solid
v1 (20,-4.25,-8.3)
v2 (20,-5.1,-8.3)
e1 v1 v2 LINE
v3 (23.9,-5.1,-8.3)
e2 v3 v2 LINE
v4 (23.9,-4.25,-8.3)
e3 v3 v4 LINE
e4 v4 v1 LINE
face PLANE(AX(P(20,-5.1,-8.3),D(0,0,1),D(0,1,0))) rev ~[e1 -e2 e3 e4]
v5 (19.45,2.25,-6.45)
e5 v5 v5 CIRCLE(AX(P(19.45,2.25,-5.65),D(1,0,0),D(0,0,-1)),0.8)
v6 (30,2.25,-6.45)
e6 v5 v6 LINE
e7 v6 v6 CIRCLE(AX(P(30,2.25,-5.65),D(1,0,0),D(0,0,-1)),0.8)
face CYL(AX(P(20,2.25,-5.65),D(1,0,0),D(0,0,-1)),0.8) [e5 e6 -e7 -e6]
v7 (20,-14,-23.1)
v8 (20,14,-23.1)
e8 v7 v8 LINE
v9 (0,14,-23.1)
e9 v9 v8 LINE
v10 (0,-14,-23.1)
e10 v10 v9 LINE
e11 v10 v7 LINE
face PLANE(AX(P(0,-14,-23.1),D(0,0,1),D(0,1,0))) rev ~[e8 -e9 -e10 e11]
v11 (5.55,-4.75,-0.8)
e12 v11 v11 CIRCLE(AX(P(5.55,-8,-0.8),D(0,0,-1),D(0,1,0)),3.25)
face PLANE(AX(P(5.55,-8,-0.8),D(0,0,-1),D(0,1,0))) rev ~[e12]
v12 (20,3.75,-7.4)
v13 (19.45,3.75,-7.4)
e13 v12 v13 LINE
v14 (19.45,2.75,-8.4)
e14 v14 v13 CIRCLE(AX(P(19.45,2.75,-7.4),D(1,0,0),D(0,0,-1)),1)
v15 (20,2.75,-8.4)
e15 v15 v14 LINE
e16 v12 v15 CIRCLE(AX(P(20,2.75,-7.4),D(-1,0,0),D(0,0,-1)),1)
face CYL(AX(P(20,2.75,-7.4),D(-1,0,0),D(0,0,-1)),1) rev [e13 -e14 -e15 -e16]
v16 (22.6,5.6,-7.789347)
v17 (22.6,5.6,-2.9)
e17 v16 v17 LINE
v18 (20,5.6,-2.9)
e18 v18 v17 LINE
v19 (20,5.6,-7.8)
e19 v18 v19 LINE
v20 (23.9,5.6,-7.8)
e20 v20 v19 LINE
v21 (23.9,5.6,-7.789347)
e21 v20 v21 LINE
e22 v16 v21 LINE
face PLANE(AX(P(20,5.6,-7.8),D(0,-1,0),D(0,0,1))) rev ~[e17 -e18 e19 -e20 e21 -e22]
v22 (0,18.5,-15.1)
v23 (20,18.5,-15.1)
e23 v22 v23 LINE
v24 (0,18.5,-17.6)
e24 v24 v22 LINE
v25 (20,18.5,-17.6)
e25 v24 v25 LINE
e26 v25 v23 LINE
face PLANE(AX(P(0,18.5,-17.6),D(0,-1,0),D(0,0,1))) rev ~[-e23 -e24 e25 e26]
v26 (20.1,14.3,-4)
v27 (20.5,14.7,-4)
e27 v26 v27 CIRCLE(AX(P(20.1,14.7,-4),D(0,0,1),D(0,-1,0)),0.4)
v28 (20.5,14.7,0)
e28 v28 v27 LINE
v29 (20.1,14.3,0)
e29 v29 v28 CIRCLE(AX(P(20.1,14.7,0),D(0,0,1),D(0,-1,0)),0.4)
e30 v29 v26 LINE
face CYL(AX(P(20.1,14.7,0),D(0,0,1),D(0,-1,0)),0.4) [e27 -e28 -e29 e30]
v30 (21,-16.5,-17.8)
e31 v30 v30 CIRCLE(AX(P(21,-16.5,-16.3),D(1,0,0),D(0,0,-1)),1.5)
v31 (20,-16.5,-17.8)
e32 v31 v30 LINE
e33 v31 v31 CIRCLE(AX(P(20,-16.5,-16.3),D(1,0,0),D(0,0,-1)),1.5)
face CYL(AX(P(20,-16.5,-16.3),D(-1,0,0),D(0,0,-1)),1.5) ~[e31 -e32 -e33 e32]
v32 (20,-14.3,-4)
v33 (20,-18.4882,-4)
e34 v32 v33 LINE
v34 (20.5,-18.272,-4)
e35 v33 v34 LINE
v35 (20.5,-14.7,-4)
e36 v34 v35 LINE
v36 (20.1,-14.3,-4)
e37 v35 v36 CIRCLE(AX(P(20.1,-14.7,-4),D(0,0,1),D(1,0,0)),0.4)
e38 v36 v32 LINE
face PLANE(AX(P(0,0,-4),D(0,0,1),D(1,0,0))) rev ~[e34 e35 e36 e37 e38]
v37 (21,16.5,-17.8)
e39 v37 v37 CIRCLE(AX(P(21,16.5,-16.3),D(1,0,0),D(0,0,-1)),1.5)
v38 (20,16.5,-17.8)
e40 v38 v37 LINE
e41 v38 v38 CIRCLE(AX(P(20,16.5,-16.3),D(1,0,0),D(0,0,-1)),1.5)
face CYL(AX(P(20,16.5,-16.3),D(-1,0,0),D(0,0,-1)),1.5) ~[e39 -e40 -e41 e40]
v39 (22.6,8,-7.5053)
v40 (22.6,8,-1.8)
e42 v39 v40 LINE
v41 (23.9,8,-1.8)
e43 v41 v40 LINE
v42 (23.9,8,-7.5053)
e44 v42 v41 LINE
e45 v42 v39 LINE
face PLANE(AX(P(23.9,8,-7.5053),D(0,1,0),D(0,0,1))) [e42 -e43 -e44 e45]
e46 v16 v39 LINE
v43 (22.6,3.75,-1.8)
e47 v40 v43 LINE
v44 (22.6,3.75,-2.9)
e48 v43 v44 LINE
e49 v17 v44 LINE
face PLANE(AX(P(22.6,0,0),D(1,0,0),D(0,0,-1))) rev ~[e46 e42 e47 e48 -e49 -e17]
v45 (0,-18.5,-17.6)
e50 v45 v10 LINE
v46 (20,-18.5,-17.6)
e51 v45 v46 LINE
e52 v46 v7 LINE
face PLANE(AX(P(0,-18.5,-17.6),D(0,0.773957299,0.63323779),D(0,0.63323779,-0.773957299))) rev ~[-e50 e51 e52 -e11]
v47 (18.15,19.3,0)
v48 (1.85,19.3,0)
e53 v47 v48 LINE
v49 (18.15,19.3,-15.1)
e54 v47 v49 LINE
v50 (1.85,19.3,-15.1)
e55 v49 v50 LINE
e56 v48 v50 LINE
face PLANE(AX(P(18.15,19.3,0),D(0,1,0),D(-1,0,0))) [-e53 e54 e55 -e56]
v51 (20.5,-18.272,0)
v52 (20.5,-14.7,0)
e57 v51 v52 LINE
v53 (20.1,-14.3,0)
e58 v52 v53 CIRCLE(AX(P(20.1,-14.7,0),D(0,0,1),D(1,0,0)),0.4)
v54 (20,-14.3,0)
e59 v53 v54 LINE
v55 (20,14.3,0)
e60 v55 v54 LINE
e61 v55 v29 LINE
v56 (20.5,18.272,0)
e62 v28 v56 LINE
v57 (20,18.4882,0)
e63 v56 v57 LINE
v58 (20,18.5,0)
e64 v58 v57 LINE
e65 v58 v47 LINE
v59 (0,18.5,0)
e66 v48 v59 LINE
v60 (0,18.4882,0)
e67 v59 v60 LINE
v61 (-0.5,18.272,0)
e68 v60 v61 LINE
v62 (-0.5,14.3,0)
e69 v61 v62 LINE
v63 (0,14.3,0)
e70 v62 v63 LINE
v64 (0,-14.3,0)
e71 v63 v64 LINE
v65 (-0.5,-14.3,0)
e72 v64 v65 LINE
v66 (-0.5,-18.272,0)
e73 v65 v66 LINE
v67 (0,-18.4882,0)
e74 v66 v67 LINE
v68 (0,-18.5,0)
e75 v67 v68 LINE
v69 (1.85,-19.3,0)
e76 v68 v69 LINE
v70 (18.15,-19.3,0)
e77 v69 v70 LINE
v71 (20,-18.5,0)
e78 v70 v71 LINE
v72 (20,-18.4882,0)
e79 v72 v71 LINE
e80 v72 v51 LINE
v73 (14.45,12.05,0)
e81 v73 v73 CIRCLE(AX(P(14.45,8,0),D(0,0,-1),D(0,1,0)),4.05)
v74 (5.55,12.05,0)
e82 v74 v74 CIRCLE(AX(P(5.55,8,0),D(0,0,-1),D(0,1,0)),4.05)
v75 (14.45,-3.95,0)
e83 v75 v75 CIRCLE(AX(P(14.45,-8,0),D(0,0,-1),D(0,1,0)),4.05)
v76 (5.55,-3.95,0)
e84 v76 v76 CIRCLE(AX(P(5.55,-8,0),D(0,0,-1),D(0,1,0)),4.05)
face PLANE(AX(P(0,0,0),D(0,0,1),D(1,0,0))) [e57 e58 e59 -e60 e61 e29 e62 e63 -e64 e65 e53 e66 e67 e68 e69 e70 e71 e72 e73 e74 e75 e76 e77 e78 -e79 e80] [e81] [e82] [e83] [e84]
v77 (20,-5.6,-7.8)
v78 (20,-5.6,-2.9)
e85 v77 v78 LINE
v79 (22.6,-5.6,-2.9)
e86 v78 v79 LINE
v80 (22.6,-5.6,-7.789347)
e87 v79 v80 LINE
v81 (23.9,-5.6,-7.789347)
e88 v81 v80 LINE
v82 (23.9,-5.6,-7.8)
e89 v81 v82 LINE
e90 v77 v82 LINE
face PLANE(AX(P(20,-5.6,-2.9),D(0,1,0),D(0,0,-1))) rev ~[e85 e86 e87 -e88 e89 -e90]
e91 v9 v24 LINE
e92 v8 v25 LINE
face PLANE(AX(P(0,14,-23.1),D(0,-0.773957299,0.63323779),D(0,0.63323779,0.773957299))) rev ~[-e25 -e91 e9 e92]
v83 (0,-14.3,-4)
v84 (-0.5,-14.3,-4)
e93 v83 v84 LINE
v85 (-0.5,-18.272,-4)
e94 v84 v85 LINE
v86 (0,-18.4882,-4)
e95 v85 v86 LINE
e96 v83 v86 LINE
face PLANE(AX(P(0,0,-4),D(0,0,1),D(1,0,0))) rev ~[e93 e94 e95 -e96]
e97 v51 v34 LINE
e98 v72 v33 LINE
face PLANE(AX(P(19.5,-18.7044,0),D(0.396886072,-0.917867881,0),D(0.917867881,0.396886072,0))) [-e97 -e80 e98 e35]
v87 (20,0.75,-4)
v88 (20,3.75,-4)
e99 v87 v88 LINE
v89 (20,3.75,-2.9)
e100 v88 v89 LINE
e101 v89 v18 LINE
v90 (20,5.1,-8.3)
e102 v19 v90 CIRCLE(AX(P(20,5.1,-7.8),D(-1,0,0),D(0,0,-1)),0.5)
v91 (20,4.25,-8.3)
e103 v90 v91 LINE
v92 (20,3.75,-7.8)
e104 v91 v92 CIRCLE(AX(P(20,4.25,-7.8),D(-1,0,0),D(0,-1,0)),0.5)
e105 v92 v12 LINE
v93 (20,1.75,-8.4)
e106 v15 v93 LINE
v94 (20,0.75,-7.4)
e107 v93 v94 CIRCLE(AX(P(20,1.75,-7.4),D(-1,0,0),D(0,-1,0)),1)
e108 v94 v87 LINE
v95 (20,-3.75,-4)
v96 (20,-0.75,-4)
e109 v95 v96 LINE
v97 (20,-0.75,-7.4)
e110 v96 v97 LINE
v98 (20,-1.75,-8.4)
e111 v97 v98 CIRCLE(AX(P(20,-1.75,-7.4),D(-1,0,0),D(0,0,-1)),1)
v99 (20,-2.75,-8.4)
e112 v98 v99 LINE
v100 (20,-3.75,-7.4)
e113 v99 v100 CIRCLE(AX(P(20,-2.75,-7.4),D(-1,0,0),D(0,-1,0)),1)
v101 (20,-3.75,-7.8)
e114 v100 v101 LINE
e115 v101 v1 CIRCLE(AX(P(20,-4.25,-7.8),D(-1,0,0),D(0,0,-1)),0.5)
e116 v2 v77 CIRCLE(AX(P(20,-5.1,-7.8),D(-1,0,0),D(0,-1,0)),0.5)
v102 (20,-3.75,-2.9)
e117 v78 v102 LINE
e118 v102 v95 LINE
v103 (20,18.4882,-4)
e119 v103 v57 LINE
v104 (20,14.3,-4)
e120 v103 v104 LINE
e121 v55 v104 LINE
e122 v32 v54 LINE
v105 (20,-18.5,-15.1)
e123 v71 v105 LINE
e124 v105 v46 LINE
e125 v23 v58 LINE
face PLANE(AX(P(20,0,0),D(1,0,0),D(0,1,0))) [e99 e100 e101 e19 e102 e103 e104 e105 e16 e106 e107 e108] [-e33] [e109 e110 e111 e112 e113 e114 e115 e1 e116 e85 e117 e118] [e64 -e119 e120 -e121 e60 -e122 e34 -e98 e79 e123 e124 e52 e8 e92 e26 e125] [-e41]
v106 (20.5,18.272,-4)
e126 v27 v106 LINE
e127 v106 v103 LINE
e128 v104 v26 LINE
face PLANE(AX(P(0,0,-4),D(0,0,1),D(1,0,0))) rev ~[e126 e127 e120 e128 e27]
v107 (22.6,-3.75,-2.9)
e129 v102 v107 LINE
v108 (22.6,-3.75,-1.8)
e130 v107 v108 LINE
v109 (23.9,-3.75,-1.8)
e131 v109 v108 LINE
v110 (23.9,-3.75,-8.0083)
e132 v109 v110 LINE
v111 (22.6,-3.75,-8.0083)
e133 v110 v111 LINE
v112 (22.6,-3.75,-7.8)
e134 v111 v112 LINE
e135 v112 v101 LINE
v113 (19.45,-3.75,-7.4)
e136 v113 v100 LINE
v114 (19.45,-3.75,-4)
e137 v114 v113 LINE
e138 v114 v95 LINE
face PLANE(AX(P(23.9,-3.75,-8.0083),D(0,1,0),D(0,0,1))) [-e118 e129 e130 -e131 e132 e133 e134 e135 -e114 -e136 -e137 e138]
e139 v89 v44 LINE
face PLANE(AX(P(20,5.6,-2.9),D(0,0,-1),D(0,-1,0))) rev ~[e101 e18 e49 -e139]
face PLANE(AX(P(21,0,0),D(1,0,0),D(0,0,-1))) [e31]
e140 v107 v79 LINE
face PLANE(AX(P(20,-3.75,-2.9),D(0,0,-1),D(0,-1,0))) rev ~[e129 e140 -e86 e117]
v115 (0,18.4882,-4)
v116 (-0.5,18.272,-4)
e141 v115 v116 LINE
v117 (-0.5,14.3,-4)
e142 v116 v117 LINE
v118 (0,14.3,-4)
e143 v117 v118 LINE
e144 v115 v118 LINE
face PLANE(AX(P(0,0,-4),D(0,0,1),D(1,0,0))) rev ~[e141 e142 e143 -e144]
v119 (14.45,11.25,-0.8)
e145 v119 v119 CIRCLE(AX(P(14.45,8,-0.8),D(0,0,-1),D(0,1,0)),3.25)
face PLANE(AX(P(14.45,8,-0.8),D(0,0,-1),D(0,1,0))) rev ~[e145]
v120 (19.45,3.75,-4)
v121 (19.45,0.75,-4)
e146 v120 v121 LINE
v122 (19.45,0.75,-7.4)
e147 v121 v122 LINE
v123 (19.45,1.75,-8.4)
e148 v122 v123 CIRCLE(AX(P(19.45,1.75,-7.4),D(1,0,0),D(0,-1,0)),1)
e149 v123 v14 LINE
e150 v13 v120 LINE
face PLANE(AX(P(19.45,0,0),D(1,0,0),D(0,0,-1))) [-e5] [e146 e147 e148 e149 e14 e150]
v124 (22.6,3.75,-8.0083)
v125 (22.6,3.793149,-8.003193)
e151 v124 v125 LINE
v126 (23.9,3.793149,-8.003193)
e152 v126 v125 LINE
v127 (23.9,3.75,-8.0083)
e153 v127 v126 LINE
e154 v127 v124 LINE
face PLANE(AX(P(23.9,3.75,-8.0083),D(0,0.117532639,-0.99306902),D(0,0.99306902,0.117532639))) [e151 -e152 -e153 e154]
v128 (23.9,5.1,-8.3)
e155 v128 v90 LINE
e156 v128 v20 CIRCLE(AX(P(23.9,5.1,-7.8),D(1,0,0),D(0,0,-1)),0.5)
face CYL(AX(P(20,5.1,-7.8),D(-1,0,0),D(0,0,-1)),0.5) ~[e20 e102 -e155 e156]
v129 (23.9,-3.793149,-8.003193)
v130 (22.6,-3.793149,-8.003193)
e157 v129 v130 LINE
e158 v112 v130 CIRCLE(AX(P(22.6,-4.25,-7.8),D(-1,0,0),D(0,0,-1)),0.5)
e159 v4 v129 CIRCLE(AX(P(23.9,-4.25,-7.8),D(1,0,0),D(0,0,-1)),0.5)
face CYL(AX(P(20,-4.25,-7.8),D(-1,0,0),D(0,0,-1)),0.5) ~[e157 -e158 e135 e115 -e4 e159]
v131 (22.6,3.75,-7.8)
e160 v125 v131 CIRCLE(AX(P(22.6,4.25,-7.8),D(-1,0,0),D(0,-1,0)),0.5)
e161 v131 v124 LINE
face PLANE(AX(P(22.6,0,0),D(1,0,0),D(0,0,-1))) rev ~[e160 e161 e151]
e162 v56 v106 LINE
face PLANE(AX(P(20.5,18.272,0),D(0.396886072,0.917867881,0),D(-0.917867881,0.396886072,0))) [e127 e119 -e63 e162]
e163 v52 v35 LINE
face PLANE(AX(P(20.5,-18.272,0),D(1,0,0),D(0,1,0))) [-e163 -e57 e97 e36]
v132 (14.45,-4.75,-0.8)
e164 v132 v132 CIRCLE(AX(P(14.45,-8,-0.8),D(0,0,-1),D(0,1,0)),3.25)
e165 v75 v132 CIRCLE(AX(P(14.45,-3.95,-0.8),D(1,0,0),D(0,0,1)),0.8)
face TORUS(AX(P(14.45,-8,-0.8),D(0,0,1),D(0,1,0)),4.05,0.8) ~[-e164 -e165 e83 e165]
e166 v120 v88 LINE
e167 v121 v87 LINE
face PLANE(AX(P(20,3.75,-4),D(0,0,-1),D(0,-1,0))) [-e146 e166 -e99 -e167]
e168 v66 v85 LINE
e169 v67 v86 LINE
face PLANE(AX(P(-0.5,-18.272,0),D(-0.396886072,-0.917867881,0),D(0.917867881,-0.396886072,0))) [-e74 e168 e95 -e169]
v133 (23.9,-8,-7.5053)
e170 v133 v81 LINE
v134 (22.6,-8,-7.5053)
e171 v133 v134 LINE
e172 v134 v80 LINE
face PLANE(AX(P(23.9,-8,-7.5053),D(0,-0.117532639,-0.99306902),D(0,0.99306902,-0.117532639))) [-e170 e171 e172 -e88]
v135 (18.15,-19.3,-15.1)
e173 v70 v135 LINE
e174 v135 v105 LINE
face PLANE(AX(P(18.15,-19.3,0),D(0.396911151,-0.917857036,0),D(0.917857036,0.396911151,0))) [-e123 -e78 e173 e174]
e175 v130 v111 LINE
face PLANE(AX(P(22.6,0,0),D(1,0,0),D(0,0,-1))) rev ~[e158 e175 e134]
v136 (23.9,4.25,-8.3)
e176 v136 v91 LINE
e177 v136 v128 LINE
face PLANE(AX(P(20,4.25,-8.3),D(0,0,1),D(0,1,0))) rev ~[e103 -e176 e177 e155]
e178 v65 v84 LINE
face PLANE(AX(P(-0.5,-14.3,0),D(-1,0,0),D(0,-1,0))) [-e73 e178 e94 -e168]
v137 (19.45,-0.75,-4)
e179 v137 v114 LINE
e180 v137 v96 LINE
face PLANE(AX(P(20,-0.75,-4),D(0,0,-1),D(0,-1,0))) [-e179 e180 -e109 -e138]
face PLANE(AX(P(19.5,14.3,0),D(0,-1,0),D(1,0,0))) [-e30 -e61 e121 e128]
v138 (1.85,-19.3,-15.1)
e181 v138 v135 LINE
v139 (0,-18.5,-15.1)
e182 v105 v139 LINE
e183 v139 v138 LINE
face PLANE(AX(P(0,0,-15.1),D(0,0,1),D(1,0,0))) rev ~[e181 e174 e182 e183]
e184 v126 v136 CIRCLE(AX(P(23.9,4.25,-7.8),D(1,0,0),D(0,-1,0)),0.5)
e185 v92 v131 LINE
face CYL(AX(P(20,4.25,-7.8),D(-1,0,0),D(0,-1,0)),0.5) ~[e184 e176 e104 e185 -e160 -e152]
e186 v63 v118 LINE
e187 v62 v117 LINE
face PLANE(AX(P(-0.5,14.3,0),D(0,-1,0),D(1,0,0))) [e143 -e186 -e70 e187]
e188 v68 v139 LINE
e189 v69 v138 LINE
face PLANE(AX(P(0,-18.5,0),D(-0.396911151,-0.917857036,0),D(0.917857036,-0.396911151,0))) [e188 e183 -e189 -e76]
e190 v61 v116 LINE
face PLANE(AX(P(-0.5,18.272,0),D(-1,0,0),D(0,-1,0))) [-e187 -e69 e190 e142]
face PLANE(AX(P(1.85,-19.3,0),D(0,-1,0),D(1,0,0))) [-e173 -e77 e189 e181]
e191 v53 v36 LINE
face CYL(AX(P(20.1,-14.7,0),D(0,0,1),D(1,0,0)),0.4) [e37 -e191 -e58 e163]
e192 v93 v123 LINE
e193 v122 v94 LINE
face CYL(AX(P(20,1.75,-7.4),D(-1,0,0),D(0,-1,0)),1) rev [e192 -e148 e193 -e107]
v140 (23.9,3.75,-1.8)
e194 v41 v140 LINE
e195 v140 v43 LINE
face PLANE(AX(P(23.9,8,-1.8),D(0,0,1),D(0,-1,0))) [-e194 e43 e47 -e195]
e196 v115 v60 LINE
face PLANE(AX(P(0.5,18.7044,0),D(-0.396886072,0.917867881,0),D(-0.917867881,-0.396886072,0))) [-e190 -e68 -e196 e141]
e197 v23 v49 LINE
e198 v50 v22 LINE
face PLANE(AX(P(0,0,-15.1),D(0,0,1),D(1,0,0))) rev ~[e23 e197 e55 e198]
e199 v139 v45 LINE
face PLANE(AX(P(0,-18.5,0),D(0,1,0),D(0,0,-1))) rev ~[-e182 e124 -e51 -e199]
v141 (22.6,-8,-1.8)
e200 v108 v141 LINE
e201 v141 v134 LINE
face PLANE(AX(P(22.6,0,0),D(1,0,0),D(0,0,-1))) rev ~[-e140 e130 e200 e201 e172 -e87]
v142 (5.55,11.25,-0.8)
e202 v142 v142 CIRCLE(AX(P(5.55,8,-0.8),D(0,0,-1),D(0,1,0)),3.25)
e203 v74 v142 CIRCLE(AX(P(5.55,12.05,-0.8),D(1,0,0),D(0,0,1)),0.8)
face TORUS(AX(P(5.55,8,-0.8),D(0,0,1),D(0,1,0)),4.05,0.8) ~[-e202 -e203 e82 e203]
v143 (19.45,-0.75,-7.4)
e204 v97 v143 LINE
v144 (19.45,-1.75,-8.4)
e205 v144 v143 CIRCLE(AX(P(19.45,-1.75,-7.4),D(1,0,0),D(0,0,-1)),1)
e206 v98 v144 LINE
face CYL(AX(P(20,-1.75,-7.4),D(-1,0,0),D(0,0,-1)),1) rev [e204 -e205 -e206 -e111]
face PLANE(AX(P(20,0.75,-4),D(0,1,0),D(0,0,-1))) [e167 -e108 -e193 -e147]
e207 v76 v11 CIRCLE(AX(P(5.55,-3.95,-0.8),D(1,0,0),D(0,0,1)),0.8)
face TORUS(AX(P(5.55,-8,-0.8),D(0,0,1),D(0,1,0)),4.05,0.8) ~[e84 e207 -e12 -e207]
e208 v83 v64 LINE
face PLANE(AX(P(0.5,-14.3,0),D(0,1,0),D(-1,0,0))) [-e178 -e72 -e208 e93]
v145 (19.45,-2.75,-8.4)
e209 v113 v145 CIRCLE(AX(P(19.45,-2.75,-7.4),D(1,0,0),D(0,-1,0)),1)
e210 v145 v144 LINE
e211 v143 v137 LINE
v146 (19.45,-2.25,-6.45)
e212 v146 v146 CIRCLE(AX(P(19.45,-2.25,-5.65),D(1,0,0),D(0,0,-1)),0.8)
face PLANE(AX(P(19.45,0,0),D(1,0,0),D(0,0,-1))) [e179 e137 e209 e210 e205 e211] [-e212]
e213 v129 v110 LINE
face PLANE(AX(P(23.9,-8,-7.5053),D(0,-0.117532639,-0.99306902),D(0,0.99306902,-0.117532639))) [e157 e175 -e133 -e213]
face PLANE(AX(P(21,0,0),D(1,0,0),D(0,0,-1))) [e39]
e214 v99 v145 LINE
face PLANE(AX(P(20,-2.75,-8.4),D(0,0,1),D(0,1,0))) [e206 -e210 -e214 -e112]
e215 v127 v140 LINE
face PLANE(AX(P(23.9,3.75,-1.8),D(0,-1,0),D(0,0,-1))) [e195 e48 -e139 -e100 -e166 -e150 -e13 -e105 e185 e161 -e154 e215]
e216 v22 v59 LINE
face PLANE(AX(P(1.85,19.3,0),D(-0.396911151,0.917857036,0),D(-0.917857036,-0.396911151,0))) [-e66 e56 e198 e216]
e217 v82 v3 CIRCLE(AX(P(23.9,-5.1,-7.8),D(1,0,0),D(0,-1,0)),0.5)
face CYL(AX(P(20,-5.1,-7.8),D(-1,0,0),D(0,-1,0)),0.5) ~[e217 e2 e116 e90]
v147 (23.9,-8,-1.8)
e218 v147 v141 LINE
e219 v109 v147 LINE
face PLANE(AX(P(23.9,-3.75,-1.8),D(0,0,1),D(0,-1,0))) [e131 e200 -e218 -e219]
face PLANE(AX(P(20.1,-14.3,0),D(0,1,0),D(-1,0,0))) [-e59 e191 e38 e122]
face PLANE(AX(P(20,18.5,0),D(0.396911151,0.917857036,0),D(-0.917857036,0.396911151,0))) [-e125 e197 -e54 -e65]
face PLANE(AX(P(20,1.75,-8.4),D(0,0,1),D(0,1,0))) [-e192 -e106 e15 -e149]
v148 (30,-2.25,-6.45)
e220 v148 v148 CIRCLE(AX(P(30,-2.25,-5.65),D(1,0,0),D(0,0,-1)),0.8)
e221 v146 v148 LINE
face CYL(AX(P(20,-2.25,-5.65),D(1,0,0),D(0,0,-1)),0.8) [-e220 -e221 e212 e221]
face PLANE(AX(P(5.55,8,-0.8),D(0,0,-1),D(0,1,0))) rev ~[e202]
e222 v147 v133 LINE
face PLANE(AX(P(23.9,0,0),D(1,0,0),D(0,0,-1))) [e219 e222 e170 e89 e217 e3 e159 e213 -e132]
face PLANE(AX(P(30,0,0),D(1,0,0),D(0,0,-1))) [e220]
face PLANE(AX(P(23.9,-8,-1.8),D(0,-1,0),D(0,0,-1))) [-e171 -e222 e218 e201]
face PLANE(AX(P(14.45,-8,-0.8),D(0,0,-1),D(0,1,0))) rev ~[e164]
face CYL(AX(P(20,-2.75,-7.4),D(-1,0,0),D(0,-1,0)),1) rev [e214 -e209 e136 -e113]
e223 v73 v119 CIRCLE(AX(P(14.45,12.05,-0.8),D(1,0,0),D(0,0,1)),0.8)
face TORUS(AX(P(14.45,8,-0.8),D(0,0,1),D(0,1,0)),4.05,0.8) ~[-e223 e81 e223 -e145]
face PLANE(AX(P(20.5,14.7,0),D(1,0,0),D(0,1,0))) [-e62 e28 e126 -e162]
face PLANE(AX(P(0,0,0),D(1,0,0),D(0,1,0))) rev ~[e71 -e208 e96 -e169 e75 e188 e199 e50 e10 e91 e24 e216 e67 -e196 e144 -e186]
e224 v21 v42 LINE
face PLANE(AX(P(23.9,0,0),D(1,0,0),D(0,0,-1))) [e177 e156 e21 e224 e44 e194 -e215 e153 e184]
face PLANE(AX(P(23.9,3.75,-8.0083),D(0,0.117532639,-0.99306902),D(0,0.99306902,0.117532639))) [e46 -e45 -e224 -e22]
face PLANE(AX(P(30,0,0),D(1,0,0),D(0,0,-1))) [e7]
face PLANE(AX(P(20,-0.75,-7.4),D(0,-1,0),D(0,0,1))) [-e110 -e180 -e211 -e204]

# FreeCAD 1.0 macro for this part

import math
import FreeCAD as App
import Part
import Sketcher
Q = App.Units.Quantity

doc = App.newDocument("Part")
body = doc.addObject("PartDesign::Body", "Body")

# Sketch on YZ plane
sketch1 = body.newObject("Sketcher::SketchObject", "Sketch")
sketch1.AttachmentSupport = (doc.getObject("YZ_Plane"), [""])
sketch1.MapMode = "FlatFace"
sketch1.addGeometry([
    Part.LineSegment(App.Vector(18, 0, 0), App.Vector(-18, 0, 0)),  # 0
    Part.LineSegment(App.Vector(-18, 0, 0), App.Vector(-18, -18, 0)),  # 1
    Part.LineSegment(App.Vector(-18, -18, 0), App.Vector(-14, -23, 0)),  # 2
    Part.LineSegment(App.Vector(-14, -23, 0), App.Vector(14, -23, 0)),  # 3
    Part.LineSegment(App.Vector(14, -23, 0), App.Vector(18, -18, 0)),  # 4
    Part.LineSegment(App.Vector(18, -18, 0), App.Vector(18, 0, 0)),  # 5
], False)
sketch1.addConstraint([
    Sketcher.Constraint("Coincident", 0, 2, 1, 1),
    Sketcher.Constraint("Coincident", 1, 2, 2, 1),
    Sketcher.Constraint("Coincident", 2, 2, 3, 1),
    Sketcher.Constraint("Coincident", 3, 2, 4, 1),
    Sketcher.Constraint("Coincident", 4, 2, 5, 1),
    Sketcher.Constraint("Coincident", 5, 2, 0, 1),
    Sketcher.Constraint("Horizontal", 0),
    Sketcher.Constraint("Vertical", 1),
    Sketcher.Constraint("Horizontal", 3),
    Sketcher.Constraint("Vertical", 5),
    Sketcher.Constraint("Symmetric", 0, 2, 5, 2, -1, 1),
    Sketcher.Constraint("Horizontal", 1, 2, 4, 2),
    Sketcher.Constraint("Equal", 2, 4),
    Sketcher.Constraint("DistanceX", 0, 2, 0, 1, Q("37 mm")),
    Sketcher.Constraint("DistanceX", 3, 1, 3, 2, Q("28 mm")),
    Sketcher.Constraint("DistanceY", 1, 2, 1, 1, Q("17.6 mm")),
    Sketcher.Constraint("DistanceY", 2, 2, -1, 1, Q("23.1 mm")),
])
pad1 = body.newObject("PartDesign::Pad", "Pad")
pad1.Profile = sketch1
pad1.Length = 20

# Sketch on XY plane
sketch2 = body.newObject("Sketcher::SketchObject", "Sketch001")
sketch2.AttachmentSupport = (doc.getObject("XY_Plane"), [""])
sketch2.MapMode = "FlatFace"
sketch2.addGeometry([
    Part.LineSegment(App.Vector(1.9, 19.3, 0), App.Vector(0, 18.5, 0)),
    Part.LineSegment(App.Vector(0, 18.5, 0), App.Vector(20, 18.5, 0)),
    Part.LineSegment(App.Vector(20, 18.5, 0), App.Vector(18.1, 19.3, 0)),
    Part.LineSegment(App.Vector(18.1, 19.3, 0), App.Vector(1.9, 19.3, 0)),
], False)
sketch2.addConstraint([
    Sketcher.Constraint("Coincident", 0, 2, 1, 1),
    Sketcher.Constraint("Coincident", 1, 2, 2, 1),
    Sketcher.Constraint("Coincident", 2, 2, 3, 1),
    Sketcher.Constraint("Coincident", 3, 2, 0, 1),
    Sketcher.Constraint("Horizontal", 1),
    Sketcher.Constraint("Horizontal", 3),
    Sketcher.Constraint("PointOnObject", 0, 2, -2),
    Sketcher.Constraint("Equal", 0, 2),
    Sketcher.Constraint("DistanceX", 1, 1, 1, 2, Q("20 mm")),
    Sketcher.Constraint("DistanceX", 3, 2, 3, 1, Q("16.3 mm")),
    Sketcher.Constraint("DistanceY", -1, 1, 0, 2, Q("18.5 mm")),
    Sketcher.Constraint("DistanceY", -1, 1, 2, 2, Q("19.3 mm")),
])
pad2 = body.newObject("PartDesign::Pad", "Pad001")
pad2.Profile = sketch2
pad2.Length = 15.1
pad2.Reversed = True

# Sketch on XY plane
sketch3 = body.newObject("Sketcher::SketchObject", "Sketch002")
sketch3.AttachmentSupport = (doc.getObject("XY_Plane"), [""])
sketch3.MapMode = "FlatFace"
sketch3.addGeometry([
    Part.LineSegment(App.Vector(20, -18.5, 0), App.Vector(0, -18.5, 0)),
    Part.LineSegment(App.Vector(0, -18.5, 0), App.Vector(1.9, -19.3, 0)),
    Part.LineSegment(App.Vector(1.9, -19.3, 0), App.Vector(18.1, -19.3, 0)),
    Part.LineSegment(App.Vector(18.1, -19.3, 0), App.Vector(20, -18.5, 0)),
], False)
sketch3.addConstraint([
    Sketcher.Constraint("Coincident", 0, 2, 1, 1),
    Sketcher.Constraint("Coincident", 1, 2, 2, 1),
    Sketcher.Constraint("Coincident", 2, 2, 3, 1),
    Sketcher.Constraint("Coincident", 3, 2, 0, 1),
    Sketcher.Constraint("Horizontal", 0),
    Sketcher.Constraint("Horizontal", 2),
    Sketcher.Constraint("PointOnObject", 0, 2, -2),
    Sketcher.Constraint("Equal", 1, 3),
    Sketcher.Constraint("DistanceX", 0, 2, 0, 1, Q("20 mm")),
    Sketcher.Constraint("DistanceX", 2, 1, 2, 2, Q("16.3 mm")),
    Sketcher.Constraint("DistanceY", 0, 2, -1, 1, Q("18.5 mm")),
    Sketcher.Constraint("DistanceY", 1, 2, -1, 1, Q("19.3 mm")),
])
pad3 = body.newObject("PartDesign::Pad", "Pad002")
pad3.Profile = sketch3
pad3.Length = 15.1
pad3.Reversed = True

# Sketch on XY plane
sketch4 = body.newObject("Sketcher::SketchObject", "Sketch003")
sketch4.AttachmentSupport = (doc.getObject("XY_Plane"), [""])
sketch4.MapMode = "FlatFace"
sketch4.addGeometry([
    Part.LineSegment(App.Vector(0.5, 18.7, 0), App.Vector(-0.5, 18.3, 0)),
    Part.LineSegment(App.Vector(-0.5, 18.3, 0), App.Vector(-0.5, 14.3, 0)),
    Part.LineSegment(App.Vector(-0.5, 14.3, 0), App.Vector(0.5, 14.3, 0)),
    Part.LineSegment(App.Vector(0.5, 14.3, 0), App.Vector(0.5, 18.7, 0)),
], False)
sketch4.addConstraint([
    Sketcher.Constraint("Coincident", 0, 2, 1, 1),
    Sketcher.Constraint("Coincident", 1, 2, 2, 1),
    Sketcher.Constraint("Coincident", 2, 2, 3, 1),
    Sketcher.Constraint("Coincident", 3, 2, 0, 1),
    Sketcher.Constraint("Vertical", 1),
    Sketcher.Constraint("Horizontal", 2),
    Sketcher.Constraint("Vertical", 3),
    Sketcher.Constraint("DistanceX", 2, 1, 2, 2, Q("1 mm")),
    Sketcher.Constraint("DistanceX", 0, 2, -1, 1, Q("0.5 mm")),
    Sketcher.Constraint("DistanceY", -1, 1, 1, 2, Q("14.3 mm")),
    Sketcher.Constraint("DistanceY", 1, 2, 1, 1, Q("3.972 mm")),
    Sketcher.Constraint("DistanceY", 3, 1, 3, 2, Q("4.4044 mm")),
])
pad4 = body.newObject("PartDesign::Pad", "Pad003")
pad4.Profile = sketch4
pad4.Length = 4
pad4.Reversed = True

# Sketch on XY plane
sketch5 = body.newObject("Sketcher::SketchObject", "Sketch004")
sketch5.AttachmentSupport = (doc.getObject("XY_Plane"), [""])
sketch5.MapMode = "FlatFace"
sketch5.addGeometry([
    Part.LineSegment(App.Vector(20.5, 18.27, 0), App.Vector(19.5, 18.7, 0)),  # 0
    Part.LineSegment(App.Vector(19.5, 18.7, 0), App.Vector(19.5, 14.3, 0)),  # 1
    Part.LineSegment(App.Vector(19.5, 14.3, 0), App.Vector(20.1, 14.3, 0)),  # 2
    Part.ArcOfCircle(Part.Circle(App.Vector(20.1, 14.7, 0), App.Vector(0, 0, 1), 0.4), math.radians(-90), math.radians(0)),  # 3
    Part.LineSegment(App.Vector(20.5, 14.7, 0), App.Vector(20.5, 18.27, 0)),  # 4
], False)
sketch5.addConstraint([
    Sketcher.Constraint("Coincident", 0, 2, 1, 1),
    Sketcher.Constraint("Coincident", 1, 2, 2, 1),
    Sketcher.Constraint("Tangent", 2, 2, 3, 1),
    Sketcher.Constraint("Tangent", 3, 2, 4, 1),
    Sketcher.Constraint("Coincident", 4, 2, 0, 1),
    Sketcher.Constraint("Vertical", 1),
    Sketcher.Constraint("Horizontal", 2),
    Sketcher.Constraint("Vertical", 4),
    Sketcher.Constraint("Radius", 3, Q("0.4 mm")),
    Sketcher.Constraint("DistanceX", 2, 1, 2, 2, Q("0.6 mm")),
    Sketcher.Constraint("DistanceX", -1, 1, 3, 3, Q("20.1 mm")),
    Sketcher.Constraint("DistanceY", -1, 1, 3, 3, Q("14.7 mm")),
    Sketcher.Constraint("DistanceY", 4, 1, 4, 2, Q("3.572 mm")),
    Sketcher.Constraint("DistanceY", 1, 2, 1, 1, Q("4.4044 mm")),
])
pad5 = body.newObject("PartDesign::Pad", "Pad004")
pad5.Profile = sketch5
pad5.Length = 4
pad5.Reversed = True

# Sketch on XY plane
sketch6 = body.newObject("Sketcher::SketchObject", "Sketch005")
sketch6.AttachmentSupport = (doc.getObject("XY_Plane"), [""])
sketch6.MapMode = "FlatFace"
sketch6.addGeometry([
    Part.LineSegment(App.Vector(-0.5, -14.3, 0), App.Vector(-0.5, -18.3, 0)),
    Part.LineSegment(App.Vector(-0.5, -18.3, 0), App.Vector(0.5, -18.7, 0)),
    Part.LineSegment(App.Vector(0.5, -18.7, 0), App.Vector(0.5, -14.3, 0)),
    Part.LineSegment(App.Vector(0.5, -14.3, 0), App.Vector(-0.5, -14.3, 0)),
], False)
sketch6.addConstraint([
    Sketcher.Constraint("Coincident", 0, 2, 1, 1),
    Sketcher.Constraint("Coincident", 1, 2, 2, 1),
    Sketcher.Constraint("Coincident", 2, 2, 3, 1),
    Sketcher.Constraint("Coincident", 3, 2, 0, 1),
    Sketcher.Constraint("Vertical", 0),
    Sketcher.Constraint("Vertical", 2),
    Sketcher.Constraint("Horizontal", 3),
    Sketcher.Constraint("DistanceX", 3, 2, 3, 1, Q("1 mm")),
    Sketcher.Constraint("DistanceX", 0, 2, -1, 1, Q("0.5 mm")),
    Sketcher.Constraint("DistanceY", 2, 2, -1, 1, Q("14.3 mm")),
    Sketcher.Constraint("DistanceY", 0, 2, 0, 1, Q("3.972 mm")),
    Sketcher.Constraint("DistanceY", 2, 1, 2, 2, Q("4.4044 mm")),
])
pad6 = body.newObject("PartDesign::Pad", "Pad005")
pad6.Profile = sketch6
pad6.Length = 4
pad6.Reversed = True

# Sketch on XY plane
sketch7 = body.newObject("Sketcher::SketchObject", "Sketch006")
sketch7.AttachmentSupport = (doc.getObject("XY_Plane"), [""])
sketch7.MapMode = "FlatFace"
sketch7.addGeometry([
    Part.LineSegment(App.Vector(19.5, -14.3, 0), App.Vector(19.5, -18.7, 0)),  # 0
    Part.LineSegment(App.Vector(19.5, -18.7, 0), App.Vector(20.5, -18.27, 0)),  # 1
    Part.LineSegment(App.Vector(20.5, -18.27, 0), App.Vector(20.5, -14.7, 0)),  # 2
    Part.ArcOfCircle(Part.Circle(App.Vector(20.1, -14.7, 0), App.Vector(0, 0, 1), 0.4), math.radians(0), math.radians(90)),  # 3
    Part.LineSegment(App.Vector(20.1, -14.3, 0), App.Vector(19.5, -14.3, 0)),  # 4
], False)
sketch7.addConstraint([
    Sketcher.Constraint("Coincident", 0, 2, 1, 1),
    Sketcher.Constraint("Coincident", 1, 2, 2, 1),
    Sketcher.Constraint("Tangent", 2, 2, 3, 1),
    Sketcher.Constraint("Tangent", 3, 2, 4, 1),
    Sketcher.Constraint("Coincident", 4, 2, 0, 1),
    Sketcher.Constraint("Vertical", 0),
    Sketcher.Constraint("Vertical", 2),
    Sketcher.Constraint("Horizontal", 4),
    Sketcher.Constraint("Radius", 3, Q("0.4 mm")),
    Sketcher.Constraint("DistanceX", 4, 2, 4, 1, Q("0.6 mm")),
    Sketcher.Constraint("DistanceX", -1, 1, 3, 3, Q("20.1 mm")),
    Sketcher.Constraint("DistanceY", 3, 3, -1, 1, Q("14.7 mm")),
    Sketcher.Constraint("DistanceY", 2, 1, 2, 2, Q("3.572 mm")),
    Sketcher.Constraint("DistanceY", 0, 2, 0, 1, Q("4.4044 mm")),
])
pad7 = body.newObject("PartDesign::Pad", "Pad006")
pad7.Profile = sketch7
pad7.Length = 4
pad7.Reversed = True

# Sketch on YZ plane
sketch8 = body.newObject("Sketcher::SketchObject", "Sketch007")
sketch8.AttachmentSupport = (doc.getObject("YZ_Plane"), [""])
sketch8.MapMode = "FlatFace"
sketch8.AttachmentOffset = App.Placement(App.Vector(0, 0, 20), App.Rotation())
sketch8.addGeometry(Part.Circle(App.Vector(16.5, -16.3, 0), App.Vector(0, 0, 1), 1.5), False)
sketch8.addConstraint([
    Sketcher.Constraint("Diameter", 0, Q("3 mm")),
    Sketcher.Constraint("DistanceX", -1, 1, 0, 3, Q("16.5 mm")),
    Sketcher.Constraint("DistanceY", 0, 3, -1, 1, Q("16.3 mm")),
])
pad8 = body.newObject("PartDesign::Pad", "Pad007")
pad8.Profile = sketch8
pad8.Length = 2
pad8.Midplane = True

# Sketch on YZ plane
sketch9 = body.newObject("Sketcher::SketchObject", "Sketch008")
sketch9.AttachmentSupport = (doc.getObject("YZ_Plane"), [""])
sketch9.MapMode = "FlatFace"
sketch9.AttachmentOffset = App.Placement(App.Vector(0, 0, 20), App.Rotation())
sketch9.addGeometry(Part.Circle(App.Vector(-16.5, -16.3, 0), App.Vector(0, 0, 1), 1.5), False)
sketch9.addConstraint([
    Sketcher.Constraint("Diameter", 0, Q("3 mm")),
    Sketcher.Constraint("DistanceX", 0, 3, -1, 1, Q("16.5 mm")),
    Sketcher.Constraint("DistanceY", 0, 3, -1, 1, Q("16.3 mm")),
])
pad9 = body.newObject("PartDesign::Pad", "Pad008")
pad9.Profile = sketch9
pad9.Length = 2
pad9.Midplane = True

# Sketch on YZ plane
sketch10 = body.newObject("Sketcher::SketchObject", "Sketch009")
sketch10.AttachmentSupport = (doc.getObject("YZ_Plane"), [""])
sketch10.MapMode = "FlatFace"
sketch10.AttachmentOffset = App.Placement(App.Vector(0, 0, 5.55), App.Rotation())
sketch10.addGeometry([
    Part.LineSegment(App.Vector(8, 1.2, 0), App.Vector(8, -0.8, 0)),  # 0
    Part.LineSegment(App.Vector(8, -0.8, 0), App.Vector(11.2, -0.8, 0)),  # 1
    Part.ArcOfCircle(Part.Circle(App.Vector(12.1, -0.8, 0), App.Vector(0, 0, 1), 0.8), math.radians(90), math.radians(180)),  # 2
    Part.LineSegment(App.Vector(12.1, 0, 0), App.Vector(12.1, 1.2, 0)),  # 3
    Part.LineSegment(App.Vector(12.1, 1.2, 0), App.Vector(8, 1.2, 0)),  # 4
], False)
sketch10.addGeometry(Part.LineSegment(App.Vector(8, 1.2, 0), App.Vector(8, -0.8, 0)), True)  # axis
sketch10.addConstraint([
    Sketcher.Constraint("Coincident", 0, 2, 1, 1),
    Sketcher.Constraint("Coincident", 1, 2, 2, 2),
    Sketcher.Constraint("Coincident", 2, 1, 3, 1),
    Sketcher.Constraint("Coincident", 3, 2, 4, 1),
    Sketcher.Constraint("Coincident", 4, 2, 0, 1),
    Sketcher.Constraint("Vertical", 0),
    Sketcher.Constraint("Horizontal", 1),
    Sketcher.Constraint("Vertical", 3),
    Sketcher.Constraint("Horizontal", 4),
    Sketcher.Constraint("Vertical", 5),
    Sketcher.Constraint("Coincident", 5, 1, 4, 2),
    Sketcher.Constraint("PointOnObject", 2, 1, -1),
    Sketcher.Constraint("Horizontal", 2, 3, 0, 2),
    Sketcher.Constraint("Horizontal", 1, 2, 5, 2),
    Sketcher.Constraint("Radius", 2, Q("0.8 mm")),
    Sketcher.Constraint("DistanceY", 0, 2, 0, 1, Q("2 mm")),
    Sketcher.Constraint("DistanceX", -1, 1, 0, 2, Q("8 mm")),
    Sketcher.Constraint("DistanceX", 1, 1, 1, 2, Q("3.25 mm")),
    Sketcher.Constraint("DistanceX", 4, 2, 4, 1, Q("4.05 mm")),
])
groove = body.newObject("PartDesign::Groove", "Groove")
groove.Profile = sketch10
groove.ReferenceAxis = (sketch10, ["Axis0"])
groove.Angle = 360

# Sketch on YZ plane
sketch11 = body.newObject("Sketcher::SketchObject", "Sketch010")
sketch11.AttachmentSupport = (doc.getObject("YZ_Plane"), [""])
sketch11.MapMode = "FlatFace"
sketch11.AttachmentOffset = App.Placement(App.Vector(0, 0, 14.45), App.Rotation())
sketch11.addGeometry([
    Part.LineSegment(App.Vector(8, 1.2, 0), App.Vector(8, -0.8, 0)),  # 0
    Part.LineSegment(App.Vector(8, -0.8, 0), App.Vector(11.2, -0.8, 0)),  # 1
    Part.ArcOfCircle(Part.Circle(App.Vector(12.1, -0.8, 0), App.Vector(0, 0, 1), 0.8), math.radians(90), math.radians(180)),  # 2
    Part.LineSegment(App.Vector(12.1, 0, 0), App.Vector(12.1, 1.2, 0)),  # 3
    Part.LineSegment(App.Vector(12.1, 1.2, 0), App.Vector(8, 1.2, 0)),  # 4
], False)
sketch11.addGeometry(Part.LineSegment(App.Vector(8, 1.2, 0), App.Vector(8, -0.8, 0)), True)  # axis
sketch11.addConstraint([
    Sketcher.Constraint("Coincident", 0, 2, 1, 1),
    Sketcher.Constraint("Coincident", 1, 2, 2, 2),
    Sketcher.Constraint("Coincident", 2, 1, 3, 1),
    Sketcher.Constraint("Coincident", 3, 2, 4, 1),
    Sketcher.Constraint("Coincident", 4, 2, 0, 1),
    Sketcher.Constraint("Vertical", 0),
    Sketcher.Constraint("Horizontal", 1),
    Sketcher.Constraint("Vertical", 3),
    Sketcher.Constraint("Horizontal", 4),
    Sketcher.Constraint("Vertical", 5),
    Sketcher.Constraint("Coincident", 5, 1, 4, 2),
    Sketcher.Constraint("PointOnObject", 2, 1, -1),
    Sketcher.Constraint("Horizontal", 2, 3, 0, 2),
    Sketcher.Constraint("Horizontal", 1, 2, 5, 2),
    Sketcher.Constraint("Radius", 2, Q("0.8 mm")),
    Sketcher.Constraint("DistanceY", 0, 2, 0, 1, Q("2 mm")),
    Sketcher.Constraint("DistanceX", -1, 1, 0, 2, Q("8 mm")),
    Sketcher.Constraint("DistanceX", 1, 1, 1, 2, Q("3.25 mm")),
    Sketcher.Constraint("DistanceX", 4, 2, 4, 1, Q("4.05 mm")),
])
groove2 = body.newObject("PartDesign::Groove", "Groove001")
groove2.Profile = sketch11
groove2.ReferenceAxis = (sketch11, ["Axis0"])
groove2.Angle = 360

# Sketch on YZ plane
sketch12 = body.newObject("Sketcher::SketchObject", "Sketch011")
sketch12.AttachmentSupport = (doc.getObject("YZ_Plane"), [""])
sketch12.MapMode = "FlatFace"
sketch12.AttachmentOffset = App.Placement(App.Vector(0, 0, 5.55), App.Rotation())
sketch12.addGeometry([
    Part.LineSegment(App.Vector(-8, 1.2, 0), App.Vector(-8, -0.8, 0)),  # 0
    Part.LineSegment(App.Vector(-8, -0.8, 0), App.Vector(-4.8, -0.8, 0)),  # 1
    Part.ArcOfCircle(Part.Circle(App.Vector(-4, -0.8, 0), App.Vector(0, 0, 1), 0.8), math.radians(90), math.radians(180)),  # 2
    Part.LineSegment(App.Vector(-4, 0, 0), App.Vector(-4, 1.2, 0)),  # 3
    Part.LineSegment(App.Vector(-4, 1.2, 0), App.Vector(-8, 1.2, 0)),  # 4
], False)
sketch12.addGeometry(Part.LineSegment(App.Vector(-8, 1.2, 0), App.Vector(-8, -0.8, 0)), True)  # axis
sketch12.addConstraint([
    Sketcher.Constraint("Coincident", 0, 2, 1, 1),
    Sketcher.Constraint("Coincident", 1, 2, 2, 2),
    Sketcher.Constraint("Coincident", 2, 1, 3, 1),
    Sketcher.Constraint("Coincident", 3, 2, 4, 1),
    Sketcher.Constraint("Coincident", 4, 2, 0, 1),
    Sketcher.Constraint("Vertical", 0),
    Sketcher.Constraint("Horizontal", 1),
    Sketcher.Constraint("Vertical", 3),
    Sketcher.Constraint("Horizontal", 4),
    Sketcher.Constraint("Vertical", 5),
    Sketcher.Constraint("Coincident", 5, 1, 4, 2),
    Sketcher.Constraint("PointOnObject", 2, 1, -1),
    Sketcher.Constraint("Horizontal", 2, 3, 0, 2),
    Sketcher.Constraint("Horizontal", 1, 2, 5, 2),
    Sketcher.Constraint("Radius", 2, Q("0.8 mm")),
    Sketcher.Constraint("DistanceY", 0, 2, 0, 1, Q("2 mm")),
    Sketcher.Constraint("DistanceX", 0, 2, -1, 1, Q("8 mm")),
    Sketcher.Constraint("DistanceX", 1, 1, 1, 2, Q("3.25 mm")),
    Sketcher.Constraint("DistanceX", 4, 2, 4, 1, Q("4.05 mm")),
])
groove3 = body.newObject("PartDesign::Groove", "Groove002")
groove3.Profile = sketch12
groove3.ReferenceAxis = (sketch12, ["Axis0"])
groove3.Angle = 360

# Sketch on YZ plane
sketch13 = body.newObject("Sketcher::SketchObject", "Sketch012")
sketch13.AttachmentSupport = (doc.getObject("YZ_Plane"), [""])
sketch13.MapMode = "FlatFace"
sketch13.AttachmentOffset = App.Placement(App.Vector(0, 0, 14.45), App.Rotation())
sketch13.addGeometry([
    Part.LineSegment(App.Vector(-8, 1.2, 0), App.Vector(-8, -0.8, 0)),  # 0
    Part.LineSegment(App.Vector(-8, -0.8, 0), App.Vector(-4.8, -0.8, 0)),  # 1
    Part.ArcOfCircle(Part.Circle(App.Vector(-4, -0.8, 0), App.Vector(0, 0, 1), 0.8), math.radians(90), math.radians(180)),  # 2
    Part.LineSegment(App.Vector(-4, 0, 0), App.Vector(-4, 1.2, 0)),  # 3
    Part.LineSegment(App.Vector(-4, 1.2, 0), App.Vector(-8, 1.2, 0)),  # 4
], False)
sketch13.addGeometry(Part.LineSegment(App.Vector(-8, 1.2, 0), App.Vector(-8, -0.8, 0)), True)  # axis
sketch13.addConstraint([
    Sketcher.Constraint("Coincident", 0, 2, 1, 1),
    Sketcher.Constraint("Coincident", 1, 2, 2, 2),
    Sketcher.Constraint("Coincident", 2, 1, 3, 1),
    Sketcher.Constraint("Coincident", 3, 2, 4, 1),
    Sketcher.Constraint("Coincident", 4, 2, 0, 1),
    Sketcher.Constraint("Vertical", 0),
    Sketcher.Constraint("Horizontal", 1),
    Sketcher.Constraint("Vertical", 3),
    Sketcher.Constraint("Horizontal", 4),
    Sketcher.Constraint("Vertical", 5),
    Sketcher.Constraint("Coincident", 5, 1, 4, 2),
    Sketcher.Constraint("PointOnObject", 2, 1, -1),
    Sketcher.Constraint("Horizontal", 2, 3, 0, 2),
    Sketcher.Constraint("Horizontal", 1, 2, 5, 2),
    Sketcher.Constraint("Radius", 2, Q("0.8 mm")),
    Sketcher.Constraint("DistanceY", 0, 2, 0, 1, Q("2 mm")),
    Sketcher.Constraint("DistanceX", 0, 2, -1, 1, Q("8 mm")),
    Sketcher.Constraint("DistanceX", 1, 1, 1, 2, Q("3.25 mm")),
    Sketcher.Constraint("DistanceX", 4, 2, 4, 1, Q("4.05 mm")),
])
groove4 = body.newObject("PartDesign::Groove", "Groove003")
groove4.Profile = sketch13
groove4.ReferenceAxis = (sketch13, ["Axis0"])
groove4.Angle = 360

# Sketch on YZ plane
sketch14 = body.newObject("Sketcher::SketchObject", "Sketch013")
sketch14.AttachmentSupport = (doc.getObject("YZ_Plane"), [""])
sketch14.MapMode = "FlatFace"
sketch14.AttachmentOffset = App.Placement(App.Vector(0, 0, 20), App.Rotation())
sketch14.addGeometry([
    Part.LineSegment(App.Vector(5.6, -7.8, 0), App.Vector(5.6, -2.9, 0)),  # 0
    Part.LineSegment(App.Vector(5.6, -2.9, 0), App.Vector(3.8, -2.9, 0)),  # 1
    Part.LineSegment(App.Vector(3.8, -2.9, 0), App.Vector(3.8, -7.8, 0)),  # 2
    Part.ArcOfCircle(Part.Circle(App.Vector(4.2, -7.8, 0), App.Vector(0, 0, 1), 0.5), math.radians(180), math.radians(270)),  # 3
    Part.LineSegment(App.Vector(4.2, -8.3, 0), App.Vector(5.1, -8.3, 0)),  # 4
    Part.ArcOfCircle(Part.Circle(App.Vector(5.1, -7.8, 0), App.Vector(0, 0, 1), 0.5), math.radians(-90), math.radians(0)),  # 5
], False)
sketch14.addConstraint([
    Sketcher.Constraint("Coincident", 0, 2, 1, 1),
    Sketcher.Constraint("Coincident", 1, 2, 2, 1),
    Sketcher.Constraint("Tangent", 2, 2, 3, 1),
    Sketcher.Constraint("Tangent", 3, 2, 4, 1),
    Sketcher.Constraint("Tangent", 4, 2, 5, 1),
    Sketcher.Constraint("Tangent", 5, 2, 0, 1),
    Sketcher.Constraint("Vertical", 0),
    Sketcher.Constraint("Horizontal", 1),
    Sketcher.Constraint("Vertical", 2),
    Sketcher.Constraint("Horizontal", 4),
    Sketcher.Constraint("Equal", 3, 5),
    Sketcher.Constraint("Radius", 3, Q("0.5 mm")),
    Sketcher.Constraint("DistanceY", 0, 1, 0, 2, Q("4.9 mm")),
    Sketcher.Constraint("DistanceX", 1, 2, 1, 1, Q("1.85 mm")),
    Sketcher.Constraint("DistanceY", 3, 3, -1, 1, Q("7.8 mm")),
    Sketcher.Constraint("DistanceX", -1, 1, 5, 3, Q("5.1 mm")),
])
pad10 = body.newObject("PartDesign::Pad", "Pad009")
pad10.Profile = sketch14
pad10.Length = 7.8
pad10.Midplane = True

# Sketch on YZ plane
sketch15 = body.newObject("Sketcher::SketchObject", "Sketch014")
sketch15.AttachmentSupport = (doc.getObject("YZ_Plane"), [""])
sketch15.MapMode = "FlatFace"
sketch15.AttachmentOffset = App.Placement(App.Vector(0, 0, 20), App.Rotation())
sketch15.addGeometry([
    Part.LineSegment(App.Vector(-3.8, -7.8, 0), App.Vector(-3.8, -2.9, 0)),  # 0
    Part.LineSegment(App.Vector(-3.8, -2.9, 0), App.Vector(-5.6, -2.9, 0)),  # 1
    Part.LineSegment(App.Vector(-5.6, -2.9, 0), App.Vector(-5.6, -7.8, 0)),  # 2
    Part.ArcOfCircle(Part.Circle(App.Vector(-5.1, -7.8, 0), App.Vector(0, 0, 1), 0.5), math.radians(180), math.radians(270)),  # 3
    Part.LineSegment(App.Vector(-5.1, -8.3, 0), App.Vector(-4.2, -8.3, 0)),  # 4
    Part.ArcOfCircle(Part.Circle(App.Vector(-4.2, -7.8, 0), App.Vector(0, 0, 1), 0.5), math.radians(-90), math.radians(0)),  # 5
], False)
sketch15.addConstraint([
    Sketcher.Constraint("Coincident", 0, 2, 1, 1),
    Sketcher.Constraint("Coincident", 1, 2, 2, 1),
    Sketcher.Constraint("Tangent", 2, 2, 3, 1),
    Sketcher.Constraint("Tangent", 3, 2, 4, 1),
    Sketcher.Constraint("Tangent", 4, 2, 5, 1),
    Sketcher.Constraint("Tangent", 5, 2, 0, 1),
    Sketcher.Constraint("Vertical", 0),
    Sketcher.Constraint("Horizontal", 1),
    Sketcher.Constraint("Vertical", 2),
    Sketcher.Constraint("Horizontal", 4),
    Sketcher.Constraint("Equal", 3, 5),
    Sketcher.Constraint("Radius", 3, Q("0.5 mm")),
    Sketcher.Constraint("DistanceY", 0, 1, 0, 2, Q("4.9 mm")),
    Sketcher.Constraint("DistanceX", 1, 2, 1, 1, Q("1.85 mm")),
    Sketcher.Constraint("DistanceX", 3, 3, -1, 1, Q("5.1 mm")),
    Sketcher.Constraint("DistanceY", 3, 3, -1, 1, Q("7.8 mm")),
])
pad11 = body.newObject("PartDesign::Pad", "Pad010")
pad11.Profile = sketch15
pad11.Length = 7.8
pad11.Midplane = True

# Sketch on YZ plane
sketch16 = body.newObject("Sketcher::SketchObject", "Sketch015")
sketch16.AttachmentSupport = (doc.getObject("YZ_Plane"), [""])
sketch16.MapMode = "FlatFace"
sketch16.AttachmentOffset = App.Placement(App.Vector(0, 0, 23.9), App.Rotation())
sketch16.addGeometry([
    Part.LineSegment(App.Vector(8, -1.8, 0), App.Vector(3.8, -1.8, 0)),
    Part.LineSegment(App.Vector(3.8, -1.8, 0), App.Vector(3.8, -8, 0)),
    Part.LineSegment(App.Vector(3.8, -8, 0), App.Vector(8, -7.5, 0)),
    Part.LineSegment(App.Vector(8, -7.5, 0), App.Vector(8, -1.8, 0)),
], False)
sketch16.addConstraint([
    Sketcher.Constraint("Coincident", 0, 2, 1, 1),
    Sketcher.Constraint("Coincident", 1, 2, 2, 1),
    Sketcher.Constraint("Coincident", 2, 2, 3, 1),
    Sketcher.Constraint("Coincident", 3, 2, 0, 1),
    Sketcher.Constraint("Horizontal", 0),
    Sketcher.Constraint("Vertical", 1),
    Sketcher.Constraint("Vertical", 3),
    Sketcher.Constraint("DistanceX", -1, 1, 2, 2, Q("8 mm")),
    Sketcher.Constraint("DistanceX", 0, 2, 0, 1, Q("4.25 mm")),
    Sketcher.Constraint("DistanceY", 0, 2, -1, 1, Q("1.8 mm")),
    Sketcher.Constraint("Angle", 2, Q("6.7497 deg")),
    Sketcher.Constraint("DistanceY", 1, 2, 1, 1, Q("6.2083 mm")),
])
pad12 = body.newObject("PartDesign::Pad", "Pad011")
pad12.Profile = sketch16
pad12.Length = 1.3
pad12.Reversed = True

# Sketch on YZ plane
sketch17 = body.newObject("Sketcher::SketchObject", "Sketch016")
sketch17.AttachmentSupport = (doc.getObject("YZ_Plane"), [""])
sketch17.MapMode = "FlatFace"
sketch17.AttachmentOffset = App.Placement(App.Vector(0, 0, 23.9), App.Rotation())
sketch17.addGeometry([
    Part.LineSegment(App.Vector(-3.8, -8, 0), App.Vector(-3.8, -1.8, 0)),
    Part.LineSegment(App.Vector(-3.8, -1.8, 0), App.Vector(-8, -1.8, 0)),
    Part.LineSegment(App.Vector(-8, -1.8, 0), App.Vector(-8, -7.5, 0)),
    Part.LineSegment(App.Vector(-8, -7.5, 0), App.Vector(-3.8, -8, 0)),
], False)
sketch17.addConstraint([
    Sketcher.Constraint("Coincident", 0, 2, 1, 1),
    Sketcher.Constraint("Coincident", 1, 2, 2, 1),
    Sketcher.Constraint("Coincident", 2, 2, 3, 1),
    Sketcher.Constraint("Coincident", 3, 2, 0, 1),
    Sketcher.Constraint("Vertical", 0),
    Sketcher.Constraint("Horizontal", 1),
    Sketcher.Constraint("Vertical", 2),
    Sketcher.Constraint("DistanceX", 1, 2, -1, 1, Q("8 mm")),
    Sketcher.Constraint("DistanceX", 1, 2, 1, 1, Q("4.25 mm")),
    Sketcher.Constraint("DistanceY", 0, 2, -1, 1, Q("1.8 mm")),
    Sketcher.Constraint("Angle", 3, Q("-6.7497 deg")),
    Sketcher.Constraint("DistanceY", 0, 1, 0, 2, Q("6.2083 mm")),
])
pad13 = body.newObject("PartDesign::Pad", "Pad012")
pad13.Profile = sketch17
pad13.Length = 1.3
pad13.Reversed = True

# Sketch on YZ plane
sketch18 = body.newObject("Sketcher::SketchObject", "Sketch017")
sketch18.AttachmentSupport = (doc.getObject("YZ_Plane"), [""])
sketch18.MapMode = "FlatFace"
sketch18.AttachmentOffset = App.Placement(App.Vector(0, 0, 20), App.Rotation())
sketch18.addGeometry([
    Part.LineSegment(App.Vector(3.8, -7.4, 0), App.Vector(3.8, -4, 0)),  # 0
    Part.LineSegment(App.Vector(3.8, -4, 0), App.Vector(0.8, -4, 0)),  # 1
    Part.LineSegment(App.Vector(0.8, -4, 0), App.Vector(0.8, -7.4, 0)),  # 2
    Part.ArcOfCircle(Part.Circle(App.Vector(1.8, -7.4, 0), App.Vector(0, 0, 1), 1), math.radians(180), math.radians(270)),  # 3
    Part.LineSegment(App.Vector(1.8, -8.4, 0), App.Vector(2.8, -8.4, 0)),  # 4
    Part.ArcOfCircle(Part.Circle(App.Vector(2.8, -7.4, 0), App.Vector(0, 0, 1), 1), math.radians(-90), math.radians(0)),  # 5
], False)
sketch18.addConstraint([
    Sketcher.Constraint("Coincident", 0, 2, 1, 1),
    Sketcher.Constraint("Coincident", 1, 2, 2, 1),
    Sketcher.Constraint("Tangent", 2, 2, 3, 1),
    Sketcher.Constraint("Tangent", 3, 2, 4, 1),
    Sketcher.Constraint("Tangent", 4, 2, 5, 1),
    Sketcher.Constraint("Tangent", 5, 2, 0, 1),
    Sketcher.Constraint("Vertical", 0),
    Sketcher.Constraint("Horizontal", 1),
    Sketcher.Constraint("Vertical", 2),
    Sketcher.Constraint("Horizontal", 4),
    Sketcher.Constraint("Equal", 3, 5),
    Sketcher.Constraint("Radius", 3, Q("1 mm")),
    Sketcher.Constraint("DistanceX", 1, 2, 1, 1, Q("3 mm")),
    Sketcher.Constraint("DistanceY", 0, 1, 0, 2, Q("3.4 mm")),
    Sketcher.Constraint("DistanceY", 0, 2, -1, 1, Q("4 mm")),
    Sketcher.Constraint("DistanceX", -1, 1, 3, 3, Q("1.75 mm")),
])
pocket1 = body.newObject("PartDesign::Pocket", "Pocket")
pocket1.Profile = sketch18
pocket1.Length = 1.1
pocket1.Midplane = True

# Sketch on YZ plane
sketch19 = body.newObject("Sketcher::SketchObject", "Sketch018")
sketch19.AttachmentSupport = (doc.getObject("YZ_Plane"), [""])
sketch19.MapMode = "FlatFace"
sketch19.AttachmentOffset = App.Placement(App.Vector(0, 0, 20), App.Rotation())
sketch19.addGeometry([
    Part.LineSegment(App.Vector(-0.8, -7.4, 0), App.Vector(-0.8, -4, 0)),  # 0
    Part.LineSegment(App.Vector(-0.8, -4, 0), App.Vector(-3.8, -4, 0)),  # 1
    Part.LineSegment(App.Vector(-3.8, -4, 0), App.Vector(-3.8, -7.4, 0)),  # 2
    Part.ArcOfCircle(Part.Circle(App.Vector(-2.8, -7.4, 0), App.Vector(0, 0, 1), 1), math.radians(180), math.radians(270)),  # 3
    Part.LineSegment(App.Vector(-2.8, -8.4, 0), App.Vector(-1.8, -8.4, 0)),  # 4
    Part.ArcOfCircle(Part.Circle(App.Vector(-1.8, -7.4, 0), App.Vector(0, 0, 1), 1), math.radians(-90), math.radians(0)),  # 5
], False)
sketch19.addConstraint([
    Sketcher.Constraint("Coincident", 0, 2, 1, 1),
    Sketcher.Constraint("Coincident", 1, 2, 2, 1),
    Sketcher.Constraint("Tangent", 2, 2, 3, 1),
    Sketcher.Constraint("Tangent", 3, 2, 4, 1),
    Sketcher.Constraint("Tangent", 4, 2, 5, 1),
    Sketcher.Constraint("Tangent", 5, 2, 0, 1),
    Sketcher.Constraint("Vertical", 0),
    Sketcher.Constraint("Horizontal", 1),
    Sketcher.Constraint("Vertical", 2),
    Sketcher.Constraint("Horizontal", 4),
    Sketcher.Constraint("Equal", 3, 5),
    Sketcher.Constraint("Radius", 3, Q("1 mm")),
    Sketcher.Constraint("DistanceX", 1, 2, 1, 1, Q("3 mm")),
    Sketcher.Constraint("DistanceY", 0, 1, 0, 2, Q("3.4 mm")),
    Sketcher.Constraint("DistanceY", 0, 2, -1, 1, Q("4 mm")),
    Sketcher.Constraint("DistanceX", 3, 3, -1, 1, Q("2.75 mm")),
])
pocket2 = body.newObject("PartDesign::Pocket", "Pocket001")
pocket2.Profile = sketch19
pocket2.Length = 1.1
pocket2.Midplane = True

# Sketch on YZ plane
sketch20 = body.newObject("Sketcher::SketchObject", "Sketch019")
sketch20.AttachmentSupport = (doc.getObject("YZ_Plane"), [""])
sketch20.MapMode = "FlatFace"
sketch20.AttachmentOffset = App.Placement(App.Vector(0, 0, 20), App.Rotation())
sketch20.addGeometry(Part.Circle(App.Vector(2.2, -5.7, 0), App.Vector(0, 0, 1), 0.8), False)
sketch20.addConstraint([
    Sketcher.Constraint("Diameter", 0, Q("1.6 mm")),
    Sketcher.Constraint("DistanceX", -1, 1, 0, 3, Q("2.25 mm")),
    Sketcher.Constraint("DistanceY", 0, 3, -1, 1, Q("5.65 mm")),
])
pad14 = body.newObject("PartDesign::Pad", "Pad013")
pad14.Profile = sketch20
pad14.Length = 20
pad14.Midplane = True

# Sketch on YZ plane
sketch21 = body.newObject("Sketcher::SketchObject", "Sketch020")
sketch21.AttachmentSupport = (doc.getObject("YZ_Plane"), [""])
sketch21.MapMode = "FlatFace"
sketch21.AttachmentOffset = App.Placement(App.Vector(0, 0, 20), App.Rotation())
sketch21.addGeometry(Part.Circle(App.Vector(-2.2, -5.7, 0), App.Vector(0, 0, 1), 0.8), False)
sketch21.addConstraint([
    Sketcher.Constraint("Diameter", 0, Q("1.6 mm")),
    Sketcher.Constraint("DistanceX", 0, 3, -1, 1, Q("2.25 mm")),
    Sketcher.Constraint("DistanceY", 0, 3, -1, 1, Q("5.65 mm")),
])
pad15 = body.newObject("PartDesign::Pad", "Pad014")
pad15.Profile = sketch21
pad15.Length = 20
pad15.Midplane = True

doc.recompute()
